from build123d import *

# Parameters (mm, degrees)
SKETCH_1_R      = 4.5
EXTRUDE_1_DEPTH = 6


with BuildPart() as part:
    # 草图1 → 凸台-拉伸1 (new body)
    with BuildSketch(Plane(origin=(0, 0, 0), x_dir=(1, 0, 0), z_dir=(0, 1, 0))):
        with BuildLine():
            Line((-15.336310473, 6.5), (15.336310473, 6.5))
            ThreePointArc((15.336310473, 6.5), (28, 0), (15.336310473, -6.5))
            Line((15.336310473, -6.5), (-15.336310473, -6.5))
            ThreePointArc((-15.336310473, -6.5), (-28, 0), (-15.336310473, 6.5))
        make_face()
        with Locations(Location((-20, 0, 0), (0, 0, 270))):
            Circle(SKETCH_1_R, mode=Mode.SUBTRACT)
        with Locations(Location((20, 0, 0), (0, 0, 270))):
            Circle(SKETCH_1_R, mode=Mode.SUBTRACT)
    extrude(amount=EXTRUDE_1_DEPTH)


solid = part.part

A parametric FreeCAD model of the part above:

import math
import FreeCAD as App
import Part
import Sketcher

V = App.Vector

doc = App.newDocument("Part")
params = doc.addObject("Spreadsheet::Sheet", "Params")
for row, (alias, value) in enumerate([
    ("sketch1_diameter", "9 mm"),
    ("sketch1_radius", "8 mm"),
    ("pad1_length", "6 mm"),
], start=1):
    params.set(f"A{row}", alias)
    params.set(f"B{row}", "=" + value)
    params.setAlias(f"B{row}", alias)

body = doc.addObject("PartDesign::Body", "Body")

# Sketch on XZ plane
sketch1 = body.newObject("Sketcher::SketchObject", "Sketch")
sketch1.AttachmentSupport = (doc.getObject("XZ_Plane"), [""])
sketch1.MapMode = "FlatFace"
sketch1.addGeometry(Part.LineSegment(V(15.33631, -6.5, 0), V(-15.33631, -6.5, 0)), False)
sketch1.addGeometry(Part.ArcOfCircle(Part.Circle(V(-20, 0, 0), V(0, 0, 1), 8), math.radians(54.340912), math.radians(305.659088)), False)
sketch1.addGeometry(Part.LineSegment(V(-15.33631, 6.5, 0), V(15.33631, 6.5, 0)), False)
sketch1.addGeometry(Part.ArcOfCircle(Part.Circle(V(20, 0, 0), V(0, 0, 1), 8), math.radians(-125.659088), math.radians(125.659088)), False)
sketch1.addGeometry(Part.Circle(V(20, 0, 0), V(0, 0, 1), 4.5), False)
sketch1.addGeometry(Part.Circle(V(-20, 0, 0), V(0, 0, 1), 4.5), False)
sketch1.addConstraint(Sketcher.Constraint("Coincident", 0, 2, 1, 2))
sketch1.addConstraint(Sketcher.Constraint("Coincident", 1, 1, 2, 1))
sketch1.addConstraint(Sketcher.Constraint("Coincident", 2, 2, 3, 2))
sketch1.addConstraint(Sketcher.Constraint("Coincident", 3, 1, 0, 1))
sketch1.addConstraint(Sketcher.Constraint("Horizontal", 0))
sketch1.addConstraint(Sketcher.Constraint("Horizontal", 2))
sketch1.addConstraint(Sketcher.Constraint("Coincident", 4, 3, 3, 3))
sketch1.addConstraint(Sketcher.Constraint("Coincident", 5, 3, 1, 3))
sketch1.addConstraint(Sketcher.Constraint("Equal", 1, 3))
sketch1.addConstraint(Sketcher.Constraint("Equal", 4, 5))
sketch1.addConstraint(Sketcher.Constraint("Symmetric", 1, 3, 3, 3, -1, 1))
sketch1.addConstraint(Sketcher.Constraint("Symmetric", 0, 2, 1, 1, -1))
sketch1.addConstraint(Sketcher.Constraint("Diameter", 4, 9.0))
sketch1.addConstraint(Sketcher.Constraint("Radius", 1, 8.0))
sketch1.addConstraint(Sketcher.Constraint("DistanceX", 1, 3, -1, 1, 20.0))
sketch1.addConstraint(Sketcher.Constraint("DistanceY", 0, 2, 1, 1, 13.0))
sketch1.setExpression("Constraints[12]", "Params.sketch1_diameter")
sketch1.setExpression("Constraints[13]", "Params.sketch1_radius")
pad1 = body.newObject("PartDesign::Pad", "Pad")
pad1.Profile = sketch1
pad1.setExpression("Length", "Params.pad1_length")
pad1.Reversed = True

doc.recompute()
